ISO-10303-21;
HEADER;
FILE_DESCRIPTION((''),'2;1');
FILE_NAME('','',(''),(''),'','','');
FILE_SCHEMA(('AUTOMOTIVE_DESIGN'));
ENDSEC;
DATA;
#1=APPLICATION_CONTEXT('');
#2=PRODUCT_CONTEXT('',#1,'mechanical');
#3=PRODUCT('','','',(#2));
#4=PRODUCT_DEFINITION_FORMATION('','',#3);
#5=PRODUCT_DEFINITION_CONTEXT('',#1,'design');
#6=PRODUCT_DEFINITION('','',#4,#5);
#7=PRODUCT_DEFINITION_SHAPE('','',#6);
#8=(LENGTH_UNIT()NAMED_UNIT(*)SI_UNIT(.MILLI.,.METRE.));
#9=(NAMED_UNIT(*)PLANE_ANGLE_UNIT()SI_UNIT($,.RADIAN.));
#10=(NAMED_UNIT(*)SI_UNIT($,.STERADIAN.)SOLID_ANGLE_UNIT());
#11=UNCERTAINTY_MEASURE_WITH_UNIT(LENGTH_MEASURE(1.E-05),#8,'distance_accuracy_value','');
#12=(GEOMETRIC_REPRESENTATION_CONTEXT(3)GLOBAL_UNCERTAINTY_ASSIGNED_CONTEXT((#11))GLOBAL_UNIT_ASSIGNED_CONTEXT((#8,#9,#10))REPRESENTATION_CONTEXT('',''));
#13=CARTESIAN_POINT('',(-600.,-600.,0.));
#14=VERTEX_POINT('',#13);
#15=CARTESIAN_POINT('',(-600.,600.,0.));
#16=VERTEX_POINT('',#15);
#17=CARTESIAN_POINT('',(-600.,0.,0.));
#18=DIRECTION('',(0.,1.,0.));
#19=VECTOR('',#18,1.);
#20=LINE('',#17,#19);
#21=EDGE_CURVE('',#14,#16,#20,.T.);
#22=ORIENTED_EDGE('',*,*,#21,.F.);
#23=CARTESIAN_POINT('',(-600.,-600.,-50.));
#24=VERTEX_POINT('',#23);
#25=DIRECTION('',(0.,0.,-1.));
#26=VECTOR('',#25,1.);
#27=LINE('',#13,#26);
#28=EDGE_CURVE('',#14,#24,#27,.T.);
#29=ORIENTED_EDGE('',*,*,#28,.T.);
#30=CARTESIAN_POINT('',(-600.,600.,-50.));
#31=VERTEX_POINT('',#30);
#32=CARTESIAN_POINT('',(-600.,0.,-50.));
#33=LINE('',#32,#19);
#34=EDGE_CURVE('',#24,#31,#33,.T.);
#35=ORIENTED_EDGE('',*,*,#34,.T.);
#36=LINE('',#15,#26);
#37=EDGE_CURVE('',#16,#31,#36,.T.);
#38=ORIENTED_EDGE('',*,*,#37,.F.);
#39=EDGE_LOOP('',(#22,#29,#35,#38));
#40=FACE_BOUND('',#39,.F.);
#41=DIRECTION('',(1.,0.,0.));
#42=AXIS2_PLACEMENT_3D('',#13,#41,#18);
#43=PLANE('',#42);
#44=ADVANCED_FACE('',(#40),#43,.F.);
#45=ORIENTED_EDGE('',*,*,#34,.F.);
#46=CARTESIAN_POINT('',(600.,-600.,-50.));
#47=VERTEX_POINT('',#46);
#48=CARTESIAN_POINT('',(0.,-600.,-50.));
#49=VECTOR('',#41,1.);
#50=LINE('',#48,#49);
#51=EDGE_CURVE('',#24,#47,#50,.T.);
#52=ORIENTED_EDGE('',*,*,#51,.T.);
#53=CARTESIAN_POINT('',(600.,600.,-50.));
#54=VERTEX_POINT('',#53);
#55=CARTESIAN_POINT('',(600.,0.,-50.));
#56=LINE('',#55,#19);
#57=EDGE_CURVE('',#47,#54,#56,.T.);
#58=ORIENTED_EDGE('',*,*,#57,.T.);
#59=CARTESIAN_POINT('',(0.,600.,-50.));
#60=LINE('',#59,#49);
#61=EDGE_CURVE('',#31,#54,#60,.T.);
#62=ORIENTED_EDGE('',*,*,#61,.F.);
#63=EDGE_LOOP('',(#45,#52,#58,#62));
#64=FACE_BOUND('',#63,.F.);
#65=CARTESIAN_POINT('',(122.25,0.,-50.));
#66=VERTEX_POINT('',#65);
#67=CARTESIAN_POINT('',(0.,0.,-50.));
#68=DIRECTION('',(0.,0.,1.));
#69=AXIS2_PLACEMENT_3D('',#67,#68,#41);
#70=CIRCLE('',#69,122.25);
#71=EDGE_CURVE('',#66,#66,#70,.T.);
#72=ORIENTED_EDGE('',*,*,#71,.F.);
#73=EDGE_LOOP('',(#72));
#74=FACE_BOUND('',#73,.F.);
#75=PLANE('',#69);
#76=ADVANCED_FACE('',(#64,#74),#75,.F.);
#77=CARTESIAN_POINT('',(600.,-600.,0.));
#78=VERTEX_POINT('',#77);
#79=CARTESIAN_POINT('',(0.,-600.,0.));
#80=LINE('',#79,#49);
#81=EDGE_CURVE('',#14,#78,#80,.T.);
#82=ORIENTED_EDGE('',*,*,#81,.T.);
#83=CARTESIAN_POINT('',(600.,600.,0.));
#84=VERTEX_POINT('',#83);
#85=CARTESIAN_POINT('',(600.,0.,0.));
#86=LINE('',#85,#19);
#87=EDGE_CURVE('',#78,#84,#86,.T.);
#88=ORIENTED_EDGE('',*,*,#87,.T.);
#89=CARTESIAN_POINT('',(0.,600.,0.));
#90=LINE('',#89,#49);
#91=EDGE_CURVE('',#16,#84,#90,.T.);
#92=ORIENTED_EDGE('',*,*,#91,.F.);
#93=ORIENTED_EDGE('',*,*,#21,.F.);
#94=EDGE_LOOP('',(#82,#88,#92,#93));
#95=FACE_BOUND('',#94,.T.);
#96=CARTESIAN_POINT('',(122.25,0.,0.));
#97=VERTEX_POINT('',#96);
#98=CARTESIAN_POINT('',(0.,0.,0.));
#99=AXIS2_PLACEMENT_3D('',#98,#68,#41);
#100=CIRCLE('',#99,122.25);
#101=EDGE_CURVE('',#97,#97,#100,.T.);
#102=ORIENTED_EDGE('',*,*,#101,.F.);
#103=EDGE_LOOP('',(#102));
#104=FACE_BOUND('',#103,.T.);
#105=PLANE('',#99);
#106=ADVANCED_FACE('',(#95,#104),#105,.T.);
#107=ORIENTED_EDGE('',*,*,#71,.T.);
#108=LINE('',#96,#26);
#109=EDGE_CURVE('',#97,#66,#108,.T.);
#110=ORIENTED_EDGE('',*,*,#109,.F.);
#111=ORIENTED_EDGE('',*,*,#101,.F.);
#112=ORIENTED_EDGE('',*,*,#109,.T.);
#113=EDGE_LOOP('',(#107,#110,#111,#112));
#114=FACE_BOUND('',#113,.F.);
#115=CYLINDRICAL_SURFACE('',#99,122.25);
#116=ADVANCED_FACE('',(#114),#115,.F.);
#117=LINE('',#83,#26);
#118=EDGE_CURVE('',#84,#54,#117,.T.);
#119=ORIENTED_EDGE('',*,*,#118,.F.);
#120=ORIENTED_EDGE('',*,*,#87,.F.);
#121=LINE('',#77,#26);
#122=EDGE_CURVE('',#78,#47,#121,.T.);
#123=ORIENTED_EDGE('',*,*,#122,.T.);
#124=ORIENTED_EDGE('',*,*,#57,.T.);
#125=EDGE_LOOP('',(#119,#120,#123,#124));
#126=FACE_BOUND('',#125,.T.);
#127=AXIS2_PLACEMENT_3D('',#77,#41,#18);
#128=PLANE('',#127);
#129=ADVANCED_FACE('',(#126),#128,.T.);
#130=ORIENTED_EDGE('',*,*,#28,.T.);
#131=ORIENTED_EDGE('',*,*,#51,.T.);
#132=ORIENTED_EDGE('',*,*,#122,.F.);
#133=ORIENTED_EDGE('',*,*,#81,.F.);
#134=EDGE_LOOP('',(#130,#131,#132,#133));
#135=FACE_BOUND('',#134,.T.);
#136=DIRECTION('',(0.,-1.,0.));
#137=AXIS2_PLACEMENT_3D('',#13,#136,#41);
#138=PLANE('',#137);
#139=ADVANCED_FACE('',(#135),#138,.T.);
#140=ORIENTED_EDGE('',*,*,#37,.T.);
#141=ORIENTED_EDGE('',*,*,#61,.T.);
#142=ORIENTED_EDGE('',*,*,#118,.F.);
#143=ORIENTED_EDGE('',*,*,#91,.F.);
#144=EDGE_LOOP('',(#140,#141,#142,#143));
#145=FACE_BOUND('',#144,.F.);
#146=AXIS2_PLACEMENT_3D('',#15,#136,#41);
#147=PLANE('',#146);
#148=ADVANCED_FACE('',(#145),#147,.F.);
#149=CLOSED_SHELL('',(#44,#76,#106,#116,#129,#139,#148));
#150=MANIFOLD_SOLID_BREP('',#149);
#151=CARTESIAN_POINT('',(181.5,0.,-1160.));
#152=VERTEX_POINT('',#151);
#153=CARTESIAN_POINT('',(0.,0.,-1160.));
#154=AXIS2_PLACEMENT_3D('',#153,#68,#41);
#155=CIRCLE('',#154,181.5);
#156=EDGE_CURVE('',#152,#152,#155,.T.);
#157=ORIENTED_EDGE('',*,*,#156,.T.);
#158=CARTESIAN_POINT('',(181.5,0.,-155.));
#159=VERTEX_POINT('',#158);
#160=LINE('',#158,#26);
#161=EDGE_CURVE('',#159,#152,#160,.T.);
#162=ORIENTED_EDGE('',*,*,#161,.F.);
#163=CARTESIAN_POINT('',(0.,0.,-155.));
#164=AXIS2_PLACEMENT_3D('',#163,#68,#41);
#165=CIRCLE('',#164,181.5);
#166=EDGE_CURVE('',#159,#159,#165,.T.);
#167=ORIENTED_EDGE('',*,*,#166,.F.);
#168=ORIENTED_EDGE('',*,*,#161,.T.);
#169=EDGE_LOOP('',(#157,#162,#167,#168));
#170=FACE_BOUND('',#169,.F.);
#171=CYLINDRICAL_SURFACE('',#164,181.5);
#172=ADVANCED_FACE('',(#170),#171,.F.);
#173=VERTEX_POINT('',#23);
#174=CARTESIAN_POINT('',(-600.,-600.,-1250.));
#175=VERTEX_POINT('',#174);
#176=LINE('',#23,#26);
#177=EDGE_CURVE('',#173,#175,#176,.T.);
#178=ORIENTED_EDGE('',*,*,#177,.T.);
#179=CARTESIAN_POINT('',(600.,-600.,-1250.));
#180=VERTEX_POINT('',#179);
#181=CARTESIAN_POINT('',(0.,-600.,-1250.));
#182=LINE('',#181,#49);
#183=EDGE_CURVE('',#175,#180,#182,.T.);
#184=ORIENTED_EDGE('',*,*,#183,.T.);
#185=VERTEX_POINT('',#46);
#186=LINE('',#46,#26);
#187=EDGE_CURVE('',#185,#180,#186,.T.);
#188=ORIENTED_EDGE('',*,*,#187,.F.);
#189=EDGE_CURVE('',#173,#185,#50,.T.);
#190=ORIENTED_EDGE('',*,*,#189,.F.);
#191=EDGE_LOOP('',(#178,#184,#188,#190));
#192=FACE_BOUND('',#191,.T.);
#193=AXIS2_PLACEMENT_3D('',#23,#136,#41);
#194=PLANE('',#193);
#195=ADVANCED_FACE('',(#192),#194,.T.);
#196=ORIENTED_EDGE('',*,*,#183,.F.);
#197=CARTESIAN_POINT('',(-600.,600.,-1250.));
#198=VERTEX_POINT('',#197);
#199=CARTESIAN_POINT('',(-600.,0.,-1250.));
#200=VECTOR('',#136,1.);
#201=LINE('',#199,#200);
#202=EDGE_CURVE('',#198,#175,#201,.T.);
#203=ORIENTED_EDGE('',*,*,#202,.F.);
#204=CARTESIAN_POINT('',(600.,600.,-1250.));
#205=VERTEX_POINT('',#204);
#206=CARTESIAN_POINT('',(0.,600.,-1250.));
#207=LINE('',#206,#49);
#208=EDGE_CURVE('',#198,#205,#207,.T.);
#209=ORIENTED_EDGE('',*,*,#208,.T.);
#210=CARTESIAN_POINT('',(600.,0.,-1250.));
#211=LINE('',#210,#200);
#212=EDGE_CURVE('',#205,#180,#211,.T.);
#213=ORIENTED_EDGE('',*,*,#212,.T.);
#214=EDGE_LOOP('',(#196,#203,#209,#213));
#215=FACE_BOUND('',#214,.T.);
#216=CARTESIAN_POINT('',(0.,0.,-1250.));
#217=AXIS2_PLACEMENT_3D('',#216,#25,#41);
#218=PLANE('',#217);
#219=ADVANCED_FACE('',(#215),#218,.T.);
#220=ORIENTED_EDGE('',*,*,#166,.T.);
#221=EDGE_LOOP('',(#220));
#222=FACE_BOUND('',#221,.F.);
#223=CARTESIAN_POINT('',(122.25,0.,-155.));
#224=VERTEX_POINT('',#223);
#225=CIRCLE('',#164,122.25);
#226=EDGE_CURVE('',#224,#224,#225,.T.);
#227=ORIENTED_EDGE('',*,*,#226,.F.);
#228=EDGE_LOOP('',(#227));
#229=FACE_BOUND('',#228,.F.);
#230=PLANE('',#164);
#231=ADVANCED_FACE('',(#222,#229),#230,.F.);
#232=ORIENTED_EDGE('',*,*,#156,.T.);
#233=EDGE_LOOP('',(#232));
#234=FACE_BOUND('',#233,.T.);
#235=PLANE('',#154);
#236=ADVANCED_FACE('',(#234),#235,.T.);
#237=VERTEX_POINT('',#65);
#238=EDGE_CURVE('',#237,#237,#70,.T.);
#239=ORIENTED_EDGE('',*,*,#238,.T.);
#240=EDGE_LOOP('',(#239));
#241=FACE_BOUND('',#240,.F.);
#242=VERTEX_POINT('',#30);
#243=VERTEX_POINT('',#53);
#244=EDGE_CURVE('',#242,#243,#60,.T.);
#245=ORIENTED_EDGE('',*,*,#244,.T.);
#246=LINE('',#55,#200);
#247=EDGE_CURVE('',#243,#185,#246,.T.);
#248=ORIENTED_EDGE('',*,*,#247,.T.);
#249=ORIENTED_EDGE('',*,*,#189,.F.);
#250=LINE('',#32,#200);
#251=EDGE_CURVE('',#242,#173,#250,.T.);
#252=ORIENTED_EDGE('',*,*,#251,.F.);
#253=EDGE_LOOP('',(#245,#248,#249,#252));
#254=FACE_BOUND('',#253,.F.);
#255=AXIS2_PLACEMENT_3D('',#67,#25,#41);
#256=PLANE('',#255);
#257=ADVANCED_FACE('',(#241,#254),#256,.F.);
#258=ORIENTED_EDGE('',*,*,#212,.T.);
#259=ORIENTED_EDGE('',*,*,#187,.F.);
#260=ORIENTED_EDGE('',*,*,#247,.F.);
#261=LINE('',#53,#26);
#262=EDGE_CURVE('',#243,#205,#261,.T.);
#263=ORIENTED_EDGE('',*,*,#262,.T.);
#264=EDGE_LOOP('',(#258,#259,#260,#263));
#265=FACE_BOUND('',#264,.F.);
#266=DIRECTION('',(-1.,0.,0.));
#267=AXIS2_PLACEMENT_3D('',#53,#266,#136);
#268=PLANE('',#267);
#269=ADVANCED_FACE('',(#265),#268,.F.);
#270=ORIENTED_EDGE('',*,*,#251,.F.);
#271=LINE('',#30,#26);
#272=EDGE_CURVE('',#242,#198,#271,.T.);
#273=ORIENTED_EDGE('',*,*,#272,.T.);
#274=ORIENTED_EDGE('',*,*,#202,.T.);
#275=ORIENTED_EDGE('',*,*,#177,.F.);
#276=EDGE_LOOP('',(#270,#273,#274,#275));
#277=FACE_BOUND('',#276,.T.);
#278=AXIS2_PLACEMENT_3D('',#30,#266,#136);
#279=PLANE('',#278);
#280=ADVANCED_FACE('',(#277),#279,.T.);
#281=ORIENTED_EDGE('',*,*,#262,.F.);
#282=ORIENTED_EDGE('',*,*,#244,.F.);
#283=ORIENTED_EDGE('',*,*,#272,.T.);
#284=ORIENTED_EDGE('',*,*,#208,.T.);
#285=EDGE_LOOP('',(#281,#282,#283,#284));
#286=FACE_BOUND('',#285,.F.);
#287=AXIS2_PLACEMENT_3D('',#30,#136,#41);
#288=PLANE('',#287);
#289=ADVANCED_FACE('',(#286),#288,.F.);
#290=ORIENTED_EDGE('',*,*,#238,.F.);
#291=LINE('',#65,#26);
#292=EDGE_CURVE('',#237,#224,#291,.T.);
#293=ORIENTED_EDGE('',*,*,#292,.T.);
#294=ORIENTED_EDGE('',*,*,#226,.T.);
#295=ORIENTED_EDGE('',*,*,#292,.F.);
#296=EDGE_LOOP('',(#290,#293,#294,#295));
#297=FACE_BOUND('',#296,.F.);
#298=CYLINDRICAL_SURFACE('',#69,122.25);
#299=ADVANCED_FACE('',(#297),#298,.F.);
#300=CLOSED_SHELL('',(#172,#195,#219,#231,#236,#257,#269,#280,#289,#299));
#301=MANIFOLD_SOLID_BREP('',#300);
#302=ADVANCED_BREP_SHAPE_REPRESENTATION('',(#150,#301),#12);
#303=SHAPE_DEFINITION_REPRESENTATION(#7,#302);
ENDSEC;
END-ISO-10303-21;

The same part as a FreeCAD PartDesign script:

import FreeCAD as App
import Part
import Sketcher
from FreeCAD import Vector
Q = App.Units.Quantity


def add_polygon(sketch, points):
    """Adds a closed chain of lines whose ends are joined by coincident constraints."""
    first, n = sketch.GeometryCount, len(points)
    for a, b in zip(points, points[1:] + points[:1]):
        sketch.addGeometry(Part.LineSegment(App.Vector(*a, 0), App.Vector(*b, 0)), False)
    for i in range(n):
        sketch.addConstraint(Sketcher.Constraint("Coincident", first + i, 2, first + (i + 1) % n, 1))

doc = App.newDocument("Part")
body = doc.addObject("PartDesign::Body", "Body")

# Sketch on XY plane
sketch1 = body.newObject("Sketcher::SketchObject", "Sketch")
sketch1.AttachmentSupport = (doc.getObject("XY_Plane"), [""])
sketch1.MapMode = "FlatFace"
add_polygon(sketch1, [(-600, 600), (-600, -600), (600, -600), (600, 600)])  # lines 0-3
sketch1.addGeometry(Part.Circle(Vector(0, 0, 0), Vector(0, 0, 1), 122.25), False)  # 4
sketch1.addConstraint([
    Sketcher.Constraint("Vertical", 0),
    Sketcher.Constraint("Horizontal", 1),
    Sketcher.Constraint("Vertical", 2),
    Sketcher.Constraint("Horizontal", 3),
    Sketcher.Constraint("Coincident", 4, 3, -1, 1),
    Sketcher.Constraint("Symmetric", 0, 2, 2, 2, -1, 1),
    Sketcher.Constraint("Equal", 3, 0),
    Sketcher.Constraint("Diameter", 4, Q("244.5 mm")),
    Sketcher.Constraint("DistanceX", 1, 1, 1, 2, Q("1200 mm")),
])
pad1 = body.newObject("PartDesign::Pad", "Pad")
pad1.Profile = sketch1
pad1.Length = 50
pad1.Reversed = True
body2 = doc.addObject("PartDesign::Body", "Body001")

# Sketch on XY plane
sketch2 = body2.newObject("Sketcher::SketchObject", "Sketch001")
sketch2.AttachmentSupport = (doc.getObject("XY_Plane001"), [""])
sketch2.MapMode = "FlatFace"
sketch2.AttachmentOffset = App.Placement(Vector(0, 0, -50), App.Rotation())
add_polygon(sketch2, [(-600, -600), (-600, 600), (600, 600), (600, -600)])  # lines 0-3
sketch2.addConstraint([
    Sketcher.Constraint("Vertical", 0),
    Sketcher.Constraint("Horizontal", 1),
    Sketcher.Constraint("Vertical", 2),
    Sketcher.Constraint("Horizontal", 3),
    Sketcher.Constraint("Symmetric", 0, 2, 2, 2, -1, 1),
    Sketcher.Constraint("Equal", 3, 0),
    Sketcher.Constraint("DistanceX", 1, 1, 1, 2, Q("1200 mm")),
])
pad2 = body2.newObject("PartDesign::Pad", "Pad001")
pad2.Profile = sketch2
pad2.Length = 1200
pad2.Reversed = True

# Sketch on XY plane
sketch3 = body2.newObject("Sketcher::SketchObject", "Sketch002")
sketch3.AttachmentSupport = (doc.getObject("XY_Plane001"), [""])
sketch3.MapMode = "FlatFace"
sketch3.AttachmentOffset = App.Placement(Vector(0, 0, -50), App.Rotation())
sketch3.addGeometry(Part.Circle(Vector(0, 0, 0), Vector(0, 0, 1), 122.25), False)
sketch3.addConstraint([
    Sketcher.Constraint("Coincident", 0, 3, -1, 1),
    Sketcher.Constraint("Diameter", 0, Q("244.5 mm")),
])
pocket1 = body2.newObject("PartDesign::Pocket", "Pocket")
pocket1.Profile = sketch3
pocket1.Length = 105

# Sketch on XY plane
sketch4 = body2.newObject("Sketcher::SketchObject", "Sketch003")
sketch4.AttachmentSupport = (doc.getObject("XY_Plane001"), [""])
sketch4.MapMode = "FlatFace"
sketch4.AttachmentOffset = App.Placement(Vector(0, 0, -155), App.Rotation())
sketch4.addGeometry(Part.Circle(Vector(0, 0, 0), Vector(0, 0, 1), 181.5), False)
sketch4.addConstraint([
    Sketcher.Constraint("Coincident", 0, 3, -1, 1),
    Sketcher.Constraint("Diameter", 0, Q("363 mm")),
])
pocket2 = body2.newObject("PartDesign::Pocket", "Pocket001")
pocket2.Profile = sketch4
pocket2.Length = 1005

doc.recompute()
